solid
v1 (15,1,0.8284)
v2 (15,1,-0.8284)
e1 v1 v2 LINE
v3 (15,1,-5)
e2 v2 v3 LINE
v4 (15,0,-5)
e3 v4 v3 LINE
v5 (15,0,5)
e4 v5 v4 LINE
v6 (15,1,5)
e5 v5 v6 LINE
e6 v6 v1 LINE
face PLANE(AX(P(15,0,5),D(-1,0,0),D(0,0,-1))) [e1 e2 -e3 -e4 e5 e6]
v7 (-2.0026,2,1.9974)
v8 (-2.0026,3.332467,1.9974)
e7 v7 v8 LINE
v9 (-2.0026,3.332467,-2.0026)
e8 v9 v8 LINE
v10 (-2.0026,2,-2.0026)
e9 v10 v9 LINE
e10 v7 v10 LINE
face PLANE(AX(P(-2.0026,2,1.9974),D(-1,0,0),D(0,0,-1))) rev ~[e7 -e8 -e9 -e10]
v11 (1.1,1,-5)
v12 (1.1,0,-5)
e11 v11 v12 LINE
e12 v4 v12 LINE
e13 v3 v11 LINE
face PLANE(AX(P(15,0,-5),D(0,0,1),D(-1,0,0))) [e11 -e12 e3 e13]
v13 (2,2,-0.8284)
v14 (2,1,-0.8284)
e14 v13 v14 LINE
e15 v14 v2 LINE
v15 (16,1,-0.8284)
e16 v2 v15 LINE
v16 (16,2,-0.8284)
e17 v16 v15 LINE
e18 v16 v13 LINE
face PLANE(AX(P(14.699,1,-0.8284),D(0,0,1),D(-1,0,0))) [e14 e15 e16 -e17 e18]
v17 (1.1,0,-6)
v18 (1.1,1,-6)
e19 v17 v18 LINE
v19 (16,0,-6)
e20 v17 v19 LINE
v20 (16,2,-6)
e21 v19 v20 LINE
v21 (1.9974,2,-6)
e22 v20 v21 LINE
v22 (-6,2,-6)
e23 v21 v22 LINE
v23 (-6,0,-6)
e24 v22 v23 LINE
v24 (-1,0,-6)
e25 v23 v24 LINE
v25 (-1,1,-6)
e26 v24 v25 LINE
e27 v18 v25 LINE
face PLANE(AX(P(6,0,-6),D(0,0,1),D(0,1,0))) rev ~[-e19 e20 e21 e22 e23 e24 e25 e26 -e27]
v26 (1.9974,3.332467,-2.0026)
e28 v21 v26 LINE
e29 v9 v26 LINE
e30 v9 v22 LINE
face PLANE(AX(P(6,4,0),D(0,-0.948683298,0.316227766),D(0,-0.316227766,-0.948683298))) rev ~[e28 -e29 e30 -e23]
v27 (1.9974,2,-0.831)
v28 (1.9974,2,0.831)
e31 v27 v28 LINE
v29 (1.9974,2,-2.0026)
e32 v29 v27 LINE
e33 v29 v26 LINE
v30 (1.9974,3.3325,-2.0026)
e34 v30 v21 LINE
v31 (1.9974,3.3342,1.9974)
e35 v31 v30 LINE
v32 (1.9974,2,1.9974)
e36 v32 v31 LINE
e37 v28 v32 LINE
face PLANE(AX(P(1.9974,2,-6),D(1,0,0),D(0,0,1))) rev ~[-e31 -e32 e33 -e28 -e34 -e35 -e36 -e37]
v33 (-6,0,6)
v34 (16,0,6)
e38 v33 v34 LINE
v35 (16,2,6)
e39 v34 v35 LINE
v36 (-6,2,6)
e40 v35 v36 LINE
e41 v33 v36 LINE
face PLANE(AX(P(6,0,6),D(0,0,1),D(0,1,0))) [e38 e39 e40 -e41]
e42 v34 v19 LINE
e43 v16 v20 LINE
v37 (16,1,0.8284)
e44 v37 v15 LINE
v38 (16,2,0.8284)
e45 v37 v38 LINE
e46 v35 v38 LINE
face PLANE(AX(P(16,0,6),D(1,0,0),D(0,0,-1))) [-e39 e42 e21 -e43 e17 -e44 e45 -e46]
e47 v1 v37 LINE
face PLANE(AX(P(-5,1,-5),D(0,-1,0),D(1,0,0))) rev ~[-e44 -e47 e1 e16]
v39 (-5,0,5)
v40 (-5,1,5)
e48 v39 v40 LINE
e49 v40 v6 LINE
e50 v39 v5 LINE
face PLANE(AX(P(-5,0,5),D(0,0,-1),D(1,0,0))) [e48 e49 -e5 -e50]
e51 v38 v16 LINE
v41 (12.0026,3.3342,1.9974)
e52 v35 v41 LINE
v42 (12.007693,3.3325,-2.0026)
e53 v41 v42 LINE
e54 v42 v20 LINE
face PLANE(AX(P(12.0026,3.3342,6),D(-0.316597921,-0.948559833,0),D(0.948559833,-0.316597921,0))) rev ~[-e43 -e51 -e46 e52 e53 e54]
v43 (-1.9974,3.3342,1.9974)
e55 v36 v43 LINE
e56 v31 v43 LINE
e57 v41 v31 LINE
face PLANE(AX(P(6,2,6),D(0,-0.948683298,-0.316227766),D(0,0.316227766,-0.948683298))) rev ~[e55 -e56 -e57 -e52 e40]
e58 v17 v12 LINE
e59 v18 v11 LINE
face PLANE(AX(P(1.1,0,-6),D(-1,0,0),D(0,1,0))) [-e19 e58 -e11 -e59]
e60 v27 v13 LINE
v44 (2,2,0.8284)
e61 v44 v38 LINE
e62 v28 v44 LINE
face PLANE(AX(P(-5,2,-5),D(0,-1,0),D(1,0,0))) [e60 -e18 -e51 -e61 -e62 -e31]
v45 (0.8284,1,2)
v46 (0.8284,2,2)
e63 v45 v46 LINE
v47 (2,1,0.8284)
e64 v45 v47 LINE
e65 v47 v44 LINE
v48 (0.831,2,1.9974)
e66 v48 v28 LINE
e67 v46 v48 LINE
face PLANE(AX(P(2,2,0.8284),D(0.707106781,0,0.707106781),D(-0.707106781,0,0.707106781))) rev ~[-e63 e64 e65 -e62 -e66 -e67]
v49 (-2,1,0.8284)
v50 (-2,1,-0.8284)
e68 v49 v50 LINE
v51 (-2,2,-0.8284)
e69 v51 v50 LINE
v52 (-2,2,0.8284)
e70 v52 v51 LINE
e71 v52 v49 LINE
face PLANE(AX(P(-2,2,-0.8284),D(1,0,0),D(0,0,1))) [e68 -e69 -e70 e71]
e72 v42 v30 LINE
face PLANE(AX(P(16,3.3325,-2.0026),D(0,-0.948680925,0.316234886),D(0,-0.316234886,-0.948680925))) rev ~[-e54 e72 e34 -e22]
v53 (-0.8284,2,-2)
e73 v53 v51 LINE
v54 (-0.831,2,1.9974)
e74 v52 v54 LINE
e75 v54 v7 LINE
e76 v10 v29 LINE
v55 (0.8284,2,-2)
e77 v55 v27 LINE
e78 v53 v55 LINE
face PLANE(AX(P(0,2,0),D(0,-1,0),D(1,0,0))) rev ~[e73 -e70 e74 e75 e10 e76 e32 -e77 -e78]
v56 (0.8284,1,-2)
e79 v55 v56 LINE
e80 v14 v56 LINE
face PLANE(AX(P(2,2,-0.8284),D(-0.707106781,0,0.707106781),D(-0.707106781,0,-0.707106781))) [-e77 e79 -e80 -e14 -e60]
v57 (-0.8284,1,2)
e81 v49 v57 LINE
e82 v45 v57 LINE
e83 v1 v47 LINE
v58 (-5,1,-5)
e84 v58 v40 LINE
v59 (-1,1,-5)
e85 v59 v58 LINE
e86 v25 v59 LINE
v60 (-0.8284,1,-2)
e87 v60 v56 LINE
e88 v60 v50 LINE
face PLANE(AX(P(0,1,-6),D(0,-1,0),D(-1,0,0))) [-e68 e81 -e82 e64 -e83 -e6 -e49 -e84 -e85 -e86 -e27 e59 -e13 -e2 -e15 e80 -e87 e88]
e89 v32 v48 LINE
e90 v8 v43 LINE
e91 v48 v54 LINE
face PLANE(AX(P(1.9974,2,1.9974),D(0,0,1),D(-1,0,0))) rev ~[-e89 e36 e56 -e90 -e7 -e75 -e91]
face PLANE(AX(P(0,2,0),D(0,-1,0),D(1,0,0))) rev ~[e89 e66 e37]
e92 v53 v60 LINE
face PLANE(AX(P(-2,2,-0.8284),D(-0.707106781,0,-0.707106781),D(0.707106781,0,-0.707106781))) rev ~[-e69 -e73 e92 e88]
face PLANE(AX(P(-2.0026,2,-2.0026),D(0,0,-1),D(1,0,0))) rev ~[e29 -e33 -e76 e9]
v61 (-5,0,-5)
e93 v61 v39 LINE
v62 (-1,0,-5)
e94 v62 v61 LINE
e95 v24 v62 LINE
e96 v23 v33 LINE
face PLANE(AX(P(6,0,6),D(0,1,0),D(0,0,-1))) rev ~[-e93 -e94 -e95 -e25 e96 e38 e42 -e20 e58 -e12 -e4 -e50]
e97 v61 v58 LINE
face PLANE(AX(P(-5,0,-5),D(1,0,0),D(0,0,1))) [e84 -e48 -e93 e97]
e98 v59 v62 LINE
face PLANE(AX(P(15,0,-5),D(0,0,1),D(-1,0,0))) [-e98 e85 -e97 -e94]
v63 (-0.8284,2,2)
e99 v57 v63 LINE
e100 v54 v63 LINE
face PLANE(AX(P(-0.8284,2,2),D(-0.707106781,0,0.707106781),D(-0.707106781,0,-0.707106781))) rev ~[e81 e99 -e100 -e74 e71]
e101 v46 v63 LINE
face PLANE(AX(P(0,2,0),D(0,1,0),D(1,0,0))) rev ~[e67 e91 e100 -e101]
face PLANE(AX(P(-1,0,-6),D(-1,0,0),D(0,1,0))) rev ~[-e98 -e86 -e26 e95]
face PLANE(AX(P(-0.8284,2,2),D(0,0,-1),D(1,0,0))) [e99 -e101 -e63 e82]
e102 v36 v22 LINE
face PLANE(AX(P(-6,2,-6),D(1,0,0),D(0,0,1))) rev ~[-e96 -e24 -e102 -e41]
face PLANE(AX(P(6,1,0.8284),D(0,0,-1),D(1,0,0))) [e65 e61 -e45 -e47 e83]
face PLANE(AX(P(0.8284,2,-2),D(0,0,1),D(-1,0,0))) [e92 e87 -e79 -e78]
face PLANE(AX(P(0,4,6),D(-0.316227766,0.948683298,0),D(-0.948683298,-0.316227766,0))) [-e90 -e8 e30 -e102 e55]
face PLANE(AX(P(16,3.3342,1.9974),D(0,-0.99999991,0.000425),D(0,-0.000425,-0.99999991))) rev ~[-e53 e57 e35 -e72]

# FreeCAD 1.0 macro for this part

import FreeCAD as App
import Part
import Sketcher

V = App.Vector
Q = App.Units.Quantity


def add_polygon(sketch, points):
    """Adds a closed chain of lines whose ends are joined by coincident constraints."""
    first, n = sketch.GeometryCount, len(points)
    for a, b in zip(points, points[1:] + points[:1]):
        sketch.addGeometry(Part.LineSegment(App.Vector(*a, 0), App.Vector(*b, 0)), False)
    for i in range(n):
        sketch.addConstraint(Sketcher.Constraint("Coincident", first + i, 2, first + (i + 1) % n, 1))

doc = App.newDocument("Part")
body = doc.addObject("PartDesign::Body", "Body")

# Sketch on XZ plane
sketch1 = body.newObject("Sketcher::SketchObject", "Sketch")
sketch1.AttachmentSupport = (doc.getObject("XZ_Plane"), [""])
sketch1.MapMode = "FlatFace"
add_polygon(sketch1, [(-6, -6), (-6, 6), (6, 6), (6, -6)])  # lines 0-3
add_polygon(sketch1, [(5, 5), (-5, 5), (-5, -5), (5, -5)])  # lines 4-7
sketch1.addConstraint([
    Sketcher.Constraint("Vertical", 0),
    Sketcher.Constraint("Horizontal", 1),
    Sketcher.Constraint("Vertical", 2),
    Sketcher.Constraint("Horizontal", 3),
    Sketcher.Constraint("Horizontal", 4),
    Sketcher.Constraint("Vertical", 5),
    Sketcher.Constraint("Horizontal", 6),
    Sketcher.Constraint("Vertical", 7),
    Sketcher.Constraint("Symmetric", 0, 2, 2, 2, -1, 1),
    Sketcher.Constraint("Symmetric", 4, 2, 6, 2, -1, 1),
    Sketcher.Constraint("Equal", 3, 0),
    Sketcher.Constraint("Equal", 6, 5),
    Sketcher.Constraint("DistanceX", 1, 1, 1, 2, 12.0),
    Sketcher.Constraint("DistanceX", 4, 2, 4, 1, 10.0),
])
pad1 = body.newObject("PartDesign::Pad", "Pad")
pad1.Profile = sketch1
pad1.Length = 2
pad1.Reversed = True

# Sketch on YZ plane
sketch2 = body.newObject("Sketcher::SketchObject", "Sketch001")
sketch2.AttachmentSupport = (doc.getObject("YZ_Plane"), [""])
sketch2.MapMode = "FlatFace"
sketch2.AttachmentOffset = App.Placement(V(0, 0, 6), App.Rotation())
add_polygon(sketch2, [(2, 6), (1, 6), (1, -6), (2, -6)])  # lines 0-3
sketch2.addConstraint([
    Sketcher.Constraint("Horizontal", 0),
    Sketcher.Constraint("Vertical", 1),
    Sketcher.Constraint("Horizontal", 2),
    Sketcher.Constraint("Vertical", 3),
    Sketcher.Constraint("DistanceX", 0, 2, 0, 1, 1.0),
    Sketcher.Constraint("DistanceY", 1, 2, 1, 1, 12.0),
    Sketcher.Constraint("DistanceX", -1, 1, 0, 2, 1.0),
    Sketcher.Constraint("DistanceY", -1, 1, 0, 2, 6.0),
])
pad2 = body.newObject("PartDesign::Pad", "Pad001")
pad2.Profile = sketch2
pad2.Length = 11.5
pad2.Reversed = True

# Sketch on XZ plane
sketch3 = body.newObject("Sketcher::SketchObject", "Sketch002")
sketch3.AttachmentSupport = (doc.getObject("XZ_Plane"), [""])
sketch3.MapMode = "FlatFace"
sketch3.AttachmentOffset = App.Placement(V(0, 0, -2), App.Rotation())
add_polygon(sketch3, [(-2, 0.8), (-0.8, 2), (0.8, 2), (2, 0.8), (2, -0.8), (0.8, -2), (-0.8, -2), (-2, -0.8)])  # lines 0-7
sketch3.addConstraint([
    Sketcher.Constraint("Horizontal", 1),
    Sketcher.Constraint("Vertical", 3),
    Sketcher.Constraint("Horizontal", 5),
    Sketcher.Constraint("Vertical", 7),
    Sketcher.Constraint("Symmetric", 0, 2, 4, 2, -1, 1),
    Sketcher.Constraint("Symmetric", 2, 2, 6, 2, -1, 1),
    Sketcher.Constraint("Perpendicular", 0, 2),
    Sketcher.Constraint("Perpendicular", 2, 4),
    Sketcher.Constraint("Perpendicular", 4, 6),
    Sketcher.Constraint("Horizontal", 3, 2, 6, 2),
    Sketcher.Constraint("Vertical", 1, 2, 4, 2),
    Sketcher.Constraint("Equal", 5, 3),
    Sketcher.Constraint("DistanceY", -1, 1, 0, 2, 2.0),
    Sketcher.Constraint("Distance", 0, 1.657),
])
pocket1 = body.newObject("PartDesign::Pocket", "Pocket")
pocket1.Profile = sketch3
pocket1.Type = "ThroughAll"
pocket1.Midplane = True

# Sketch on XZ plane
sketch4 = body.newObject("Sketcher::SketchObject", "Sketch003")
sketch4.AttachmentSupport = (doc.getObject("XZ_Plane"), [""])
sketch4.MapMode = "FlatFace"
sketch4.AttachmentOffset = App.Placement(V(0, 0, -2), App.Rotation())
add_polygon(sketch4, [(2, -0.8), (2, 0.8), (7.5, 0.8), (7.5, -0.8)])  # lines 0-3
sketch4.addConstraint([
    Sketcher.Constraint("Vertical", 0),
    Sketcher.Constraint("Horizontal", 1),
    Sketcher.Constraint("Vertical", 2),
    Sketcher.Constraint("Horizontal", 3),
    Sketcher.Constraint("DistanceX", -1, 1, 0, 2, 2.0),
    Sketcher.Constraint("DistanceX", 1, 1, 1, 2, 5.5124),
    Sketcher.Constraint("DistanceY", 0, 1, 0, 2, 1.6568),
    Sketcher.Constraint("DistanceY", -1, 1, 0, 2, 0.8284),
])
pocket2 = body.newObject("PartDesign::Pocket", "Pocket001")
pocket2.Profile = sketch4
pocket2.Length = 1
pocket2.Reversed = True

# Sketch on XZ plane
sketch5 = body.newObject("Sketcher::SketchObject", "Sketch004")
sketch5.AttachmentSupport = (doc.getObject("XZ_Plane"), [""])
sketch5.MapMode = "FlatFace"
sketch5.AttachmentOffset = App.Placement(V(0, 0, -2), App.Rotation())
add_polygon(sketch5, [(-6, -6), (-6, 6), (6, 6), (6, -6)])  # lines 0-3
sketch5.addConstraint([
    Sketcher.Constraint("Vertical", 0),
    Sketcher.Constraint("Horizontal", 1),
    Sketcher.Constraint("Vertical", 2),
    Sketcher.Constraint("Horizontal", 3),
    Sketcher.Constraint("Symmetric", 0, 2, 2, 2, -1, 1),
    Sketcher.Constraint("Equal", 3, 0),
    Sketcher.Constraint("DistanceX", 1, 1, 1, 2, 12.0),
])
pad3 = body.newObject("PartDesign::Pad", "Pad002")
pad3.Profile = sketch5
pad3.Length = 25
pad3.Reversed = True

# Sketch on YZ plane
sketch6 = body.newObject("Sketcher::SketchObject", "Sketch005")
sketch6.AttachmentSupport = (doc.getObject("YZ_Plane"), [""])
sketch6.MapMode = "FlatFace"
sketch6.AttachmentOffset = App.Placement(V(0, 0, 6), App.Rotation())
add_polygon(sketch6, [(2, 8.5), (2, 6), (4, 0), (2, -6), (28.7, -6), (28.7, 8.5)])  # lines 0-5
sketch6.addConstraint([
    Sketcher.Constraint("Vertical", 0),
    Sketcher.Constraint("Horizontal", 3),
    Sketcher.Constraint("Vertical", 4),
    Sketcher.Constraint("Horizontal", 5),
    Sketcher.Constraint("Symmetric", 0, 2, 2, 2, -1),
    Sketcher.Constraint("PointOnObject", 1, 2, -1),
    Sketcher.Constraint("DistanceX", -1, 1, 1, 2, 4.0),
    Sketcher.Constraint("DistanceX", -1, 1, 0, 2, 2.0),
    Sketcher.Constraint("DistanceY", -1, 1, 0, 2, 6.0),
    Sketcher.Constraint("DistanceX", 3, 1, 3, 2, 26.669),
    Sketcher.Constraint("DistanceY", 0, 2, 0, 1, 2.469),
])
pocket3 = body.newObject("PartDesign::Pocket", "Pocket002")
pocket3.Profile = sketch6
pocket3.Length = 23.25

# Sketch on XY plane
sketch7 = body.newObject("Sketcher::SketchObject", "Sketch006")
sketch7.AttachmentSupport = (doc.getObject("XY_Plane"), [""])
sketch7.MapMode = "FlatFace"
sketch7.AttachmentOffset = App.Placement(V(0, 0, 6), App.Rotation())
add_polygon(sketch7, [(-6, 2), (0, 4), (6, 2), (7.7, 2), (7.7, 5), (-6, 5)])  # lines 0-5
sketch7.addConstraint([
    Sketcher.Constraint("Horizontal", 2),
    Sketcher.Constraint("Vertical", 3),
    Sketcher.Constraint("Horizontal", 4),
    Sketcher.Constraint("Vertical", 5),
    Sketcher.Constraint("Symmetric", 1, 2, 5, 2, -2),
    Sketcher.Constraint("PointOnObject", 0, 2, -2),
    Sketcher.Constraint("DistanceY", -1, 1, 0, 2, 4.0),
    Sketcher.Constraint("DistanceX", -1, 1, 1, 2, 6.0),
    Sketcher.Constraint("DistanceY", -1, 1, 1, 2, 2.0),
    Sketcher.Constraint("DistanceX", 2, 1, 2, 2, 1.6732),
    Sketcher.Constraint("DistanceY", 3, 1, 3, 2, 2.9606),
])
pocket4 = body.newObject("PartDesign::Pocket", "Pocket003")
pocket4.Profile = sketch7
pocket4.Length = 41.75

# Sketch on XZ plane
sketch8 = body.newObject("Sketcher::SketchObject", "Sketch007")
sketch8.AttachmentSupport = (doc.getObject("XZ_Plane"), [""])
sketch8.MapMode = "FlatFace"
sketch8.AttachmentOffset = App.Placement(V(0, 0, -2), App.Rotation())
add_polygon(sketch8, [(2, -2), (2, 2), (-2, 2), (-2, -2)])  # lines 0-3
sketch8.addConstraint([
    Sketcher.Constraint("Vertical", 0),
    Sketcher.Constraint("Horizontal", 1),
    Sketcher.Constraint("Vertical", 2),
    Sketcher.Constraint("Horizontal", 3),
    Sketcher.Constraint("Equal", 3, 0),
    Sketcher.Constraint("DistanceX", 1, 2, 1, 1, 4.0),
    Sketcher.Constraint("DistanceX", -1, 1, 0, 2, 1.9974),
    Sketcher.Constraint("DistanceY", -1, 1, 0, 2, 1.9974),
])
pocket5 = body.newObject("PartDesign::Pocket", "Pocket004")
pocket5.Profile = sketch8
pocket5.Length = 105

# Sketch on YZ plane
sketch9 = body.newObject("Sketcher::SketchObject", "Sketch008")
sketch9.AttachmentSupport = (doc.getObject("YZ_Plane"), [""])
sketch9.MapMode = "FlatFace"
sketch9.AttachmentOffset = App.Placement(V(0, 0, 6), App.Rotation())
add_polygon(sketch9, [(2, 6), (0, 6), (0, -6), (2, -6)])  # lines 0-3
sketch9.addConstraint([
    Sketcher.Constraint("Horizontal", 0),
    Sketcher.Constraint("Vertical", 1),
    Sketcher.Constraint("Horizontal", 2),
    Sketcher.Constraint("Vertical", 3),
    Sketcher.Constraint("Symmetric", 0, 2, 1, 2, -1, 1),
    Sketcher.Constraint("DistanceX", 0, 2, 0, 1, 2.0),
    Sketcher.Constraint("DistanceY", 1, 2, 1, 1, 12.0),
])
pad4 = body.newObject("PartDesign::Pad", "Pad003")
pad4.Profile = sketch9
pad4.Length = 10

# Sketch on XZ plane
sketch10 = body.newObject("Sketcher::SketchObject", "Sketch009")
sketch10.AttachmentSupport = (doc.getObject("XZ_Plane"), [""])
sketch10.MapMode = "FlatFace"
add_polygon(sketch10, [(5, 5), (5, -5), (15, -5), (15, 5)])  # lines 0-3
sketch10.addConstraint([
    Sketcher.Constraint("Vertical", 0),
    Sketcher.Constraint("Horizontal", 1),
    Sketcher.Constraint("Vertical", 2),
    Sketcher.Constraint("Horizontal", 3),
    Sketcher.Constraint("Equal", 3, 0),
    Sketcher.Constraint("DistanceX", 1, 1, 1, 2, 10.0),
    Sketcher.Constraint("DistanceX", -1, 1, 0, 2, 5.0),
    Sketcher.Constraint("DistanceY", 0, 2, -1, 1, 5.0),
])
pocket6 = body.newObject("PartDesign::Pocket", "Pocket005")
pocket6.Profile = sketch10
pocket6.Length = 1

# Sketch on XZ plane
sketch11 = body.newObject("Sketcher::SketchObject", "Sketch010")
sketch11.AttachmentSupport = (doc.getObject("XZ_Plane"), [""])
sketch11.MapMode = "FlatFace"
sketch11.AttachmentOffset = App.Placement(V(0, 0, -2), App.Rotation())
add_polygon(sketch11, [(6, 6), (16, 6), (16, -6), (2, -6), (2, 2)])  # lines 0-4
sketch11.addConstraint([
    Sketcher.Constraint("Horizontal", 0),
    Sketcher.Constraint("Vertical", 1),
    Sketcher.Constraint("Horizontal", 2),
    Sketcher.Constraint("Vertical", 3),
    Sketcher.Constraint("DistanceX", 0, 1, 0, 2, 10.0),
    Sketcher.Constraint("DistanceY", 1, 2, 1, 1, 12.0),
    Sketcher.Constraint("Angle", 4, Q("45 deg")),
    Sketcher.Constraint("DistanceX", -1, 1, 0, 2, 16.0),
    Sketcher.Constraint("DistanceY", -1, 1, 0, 2, 6.0),
    Sketcher.Constraint("DistanceX", 2, 2, 2, 1, 14.0026),
])
pad5 = body.newObject("PartDesign::Pad", "Pad004")
pad5.Profile = sketch11
pad5.Length = 1.5
pad5.Reversed = True

# Sketch on YZ plane
sketch12 = body.newObject("Sketcher::SketchObject", "Sketch011")
sketch12.AttachmentSupport = (doc.getObject("YZ_Plane"), [""])
sketch12.MapMode = "FlatFace"
sketch12.AttachmentOffset = App.Placement(V(0, 0, 16), App.Rotation())
add_polygon(sketch12, [(6.3, 7.9), (2, 6), (3.3, 2), (3.3, -2), (2, -6), (5.8, -9)])  # lines 0-5
sketch12.addConstraint([
    Sketcher.Constraint("Symmetric", 0, 2, 3, 2, -1),
    Sketcher.Constraint("Distance", 2, 4.0),
    Sketcher.Constraint("DistanceX", -1, 1, 0, 2, 2.0),
    Sketcher.Constraint("DistanceY", -1, 1, 0, 2, 6.0),
    Sketcher.Constraint("Distance", 1, 4.219),
    Sketcher.Constraint("DistanceY", 4, 2, -1, 1, 8.987),
    Sketcher.Constraint("DistanceY", 1, 2, 5, 2, 5.949),
    Sketcher.Constraint("DistanceX", 2, 2, 5, 2, 2.945),
    Sketcher.Constraint("Distance", 0, 4.6995),
    Sketcher.Constraint("Distance", 3, 4.2136),
    Sketcher.Constraint("Distance", 4, 4.8528),
])
pocket7 = body.newObject("PartDesign::Pocket", "Pocket006")
pocket7.Profile = sketch12
pocket7.Length = 26

# Sketch on XY plane
sketch13 = body.newObject("Sketcher::SketchObject", "Sketch012")
sketch13.AttachmentSupport = (doc.getObject("XY_Plane"), [""])
sketch13.MapMode = "FlatFace"
sketch13.AttachmentOffset = App.Placement(V(0, 0, 6), App.Rotation())
add_polygon(sketch13, [(12, 3.3), (16, 2), (16, 3.3)])  # lines 0-2
sketch13.addConstraint([
    Sketcher.Constraint("Vertical", 1),
    Sketcher.Constraint("Horizontal", 2),
    Sketcher.Constraint("DistanceX", 2, 2, 2, 1, 3.9974),
    Sketcher.Constraint("DistanceX", -1, 1, 0, 2, 16.0),
    Sketcher.Constraint("DistanceY", -1, 1, 0, 2, 2.0),
    Sketcher.Constraint("DistanceY", 1, 1, 1, 2, 1.3342),
])
pocket8 = body.newObject("PartDesign::Pocket", "Pocket007")
pocket8.Profile = sketch13
pocket8.Length = 17.75

# Sketch on XZ plane
sketch14 = body.newObject("Sketcher::SketchObject", "Sketch013")
sketch14.AttachmentSupport = (doc.getObject("XZ_Plane"), [""])
sketch14.MapMode = "FlatFace"
sketch14.AttachmentOffset = App.Placement(V(0, 0, -1), App.Rotation())
add_polygon(sketch14, [(6, 0.8), (6, -0.8), (16.7, -0.8), (16.7, 0.8)])  # lines 0-3
sketch14.addConstraint([
    Sketcher.Constraint("Vertical", 0),
    Sketcher.Constraint("Horizontal", 1),
    Sketcher.Constraint("Vertical", 2),
    Sketcher.Constraint("Horizontal", 3),
    Sketcher.Constraint("DistanceX", -1, 1, 0, 2, 6.0),
    Sketcher.Constraint("DistanceX", 1, 1, 1, 2, 10.733),
    Sketcher.Constraint("DistanceY", 0, 2, 0, 1, 1.6568),
    Sketcher.Constraint("DistanceY", 0, 2, -1, 1, 0.8284),
])
pocket9 = body.newObject("PartDesign::Pocket", "Pocket008")
pocket9.Profile = sketch14
pocket9.Length = 1

# Sketch on XY plane
sketch15 = body.newObject("Sketcher::SketchObject", "Sketch014")
sketch15.AttachmentSupport = (doc.getObject("XY_Plane"), [""])
sketch15.MapMode = "FlatFace"
sketch15.AttachmentOffset = App.Placement(V(0, 0, -6), App.Rotation())
add_polygon(sketch15, [(-1, 1), (1.1, 1), (1.1, 0), (-1, 0)])  # lines 0-3
sketch15.addConstraint([
    Sketcher.Constraint("Horizontal", 0),
    Sketcher.Constraint("Vertical", 1),
    Sketcher.Constraint("Horizontal", 2),
    Sketcher.Constraint("Vertical", 3),
    Sketcher.Constraint("PointOnObject", 1, 2, -1),
    Sketcher.Constraint("DistanceX", -1, 1, 0, 2, 1.1),
    Sketcher.Constraint("DistanceY", 1, 2, 1, 1, 1.0),
    Sketcher.Constraint("DistanceX", 0, 1, 0, 2, 2.1),
])
pocket10 = body.newObject("PartDesign::Pocket", "Pocket009")
pocket10.Profile = sketch15
pocket10.Length = 4.75
pocket10.Reversed = True

doc.recompute()
